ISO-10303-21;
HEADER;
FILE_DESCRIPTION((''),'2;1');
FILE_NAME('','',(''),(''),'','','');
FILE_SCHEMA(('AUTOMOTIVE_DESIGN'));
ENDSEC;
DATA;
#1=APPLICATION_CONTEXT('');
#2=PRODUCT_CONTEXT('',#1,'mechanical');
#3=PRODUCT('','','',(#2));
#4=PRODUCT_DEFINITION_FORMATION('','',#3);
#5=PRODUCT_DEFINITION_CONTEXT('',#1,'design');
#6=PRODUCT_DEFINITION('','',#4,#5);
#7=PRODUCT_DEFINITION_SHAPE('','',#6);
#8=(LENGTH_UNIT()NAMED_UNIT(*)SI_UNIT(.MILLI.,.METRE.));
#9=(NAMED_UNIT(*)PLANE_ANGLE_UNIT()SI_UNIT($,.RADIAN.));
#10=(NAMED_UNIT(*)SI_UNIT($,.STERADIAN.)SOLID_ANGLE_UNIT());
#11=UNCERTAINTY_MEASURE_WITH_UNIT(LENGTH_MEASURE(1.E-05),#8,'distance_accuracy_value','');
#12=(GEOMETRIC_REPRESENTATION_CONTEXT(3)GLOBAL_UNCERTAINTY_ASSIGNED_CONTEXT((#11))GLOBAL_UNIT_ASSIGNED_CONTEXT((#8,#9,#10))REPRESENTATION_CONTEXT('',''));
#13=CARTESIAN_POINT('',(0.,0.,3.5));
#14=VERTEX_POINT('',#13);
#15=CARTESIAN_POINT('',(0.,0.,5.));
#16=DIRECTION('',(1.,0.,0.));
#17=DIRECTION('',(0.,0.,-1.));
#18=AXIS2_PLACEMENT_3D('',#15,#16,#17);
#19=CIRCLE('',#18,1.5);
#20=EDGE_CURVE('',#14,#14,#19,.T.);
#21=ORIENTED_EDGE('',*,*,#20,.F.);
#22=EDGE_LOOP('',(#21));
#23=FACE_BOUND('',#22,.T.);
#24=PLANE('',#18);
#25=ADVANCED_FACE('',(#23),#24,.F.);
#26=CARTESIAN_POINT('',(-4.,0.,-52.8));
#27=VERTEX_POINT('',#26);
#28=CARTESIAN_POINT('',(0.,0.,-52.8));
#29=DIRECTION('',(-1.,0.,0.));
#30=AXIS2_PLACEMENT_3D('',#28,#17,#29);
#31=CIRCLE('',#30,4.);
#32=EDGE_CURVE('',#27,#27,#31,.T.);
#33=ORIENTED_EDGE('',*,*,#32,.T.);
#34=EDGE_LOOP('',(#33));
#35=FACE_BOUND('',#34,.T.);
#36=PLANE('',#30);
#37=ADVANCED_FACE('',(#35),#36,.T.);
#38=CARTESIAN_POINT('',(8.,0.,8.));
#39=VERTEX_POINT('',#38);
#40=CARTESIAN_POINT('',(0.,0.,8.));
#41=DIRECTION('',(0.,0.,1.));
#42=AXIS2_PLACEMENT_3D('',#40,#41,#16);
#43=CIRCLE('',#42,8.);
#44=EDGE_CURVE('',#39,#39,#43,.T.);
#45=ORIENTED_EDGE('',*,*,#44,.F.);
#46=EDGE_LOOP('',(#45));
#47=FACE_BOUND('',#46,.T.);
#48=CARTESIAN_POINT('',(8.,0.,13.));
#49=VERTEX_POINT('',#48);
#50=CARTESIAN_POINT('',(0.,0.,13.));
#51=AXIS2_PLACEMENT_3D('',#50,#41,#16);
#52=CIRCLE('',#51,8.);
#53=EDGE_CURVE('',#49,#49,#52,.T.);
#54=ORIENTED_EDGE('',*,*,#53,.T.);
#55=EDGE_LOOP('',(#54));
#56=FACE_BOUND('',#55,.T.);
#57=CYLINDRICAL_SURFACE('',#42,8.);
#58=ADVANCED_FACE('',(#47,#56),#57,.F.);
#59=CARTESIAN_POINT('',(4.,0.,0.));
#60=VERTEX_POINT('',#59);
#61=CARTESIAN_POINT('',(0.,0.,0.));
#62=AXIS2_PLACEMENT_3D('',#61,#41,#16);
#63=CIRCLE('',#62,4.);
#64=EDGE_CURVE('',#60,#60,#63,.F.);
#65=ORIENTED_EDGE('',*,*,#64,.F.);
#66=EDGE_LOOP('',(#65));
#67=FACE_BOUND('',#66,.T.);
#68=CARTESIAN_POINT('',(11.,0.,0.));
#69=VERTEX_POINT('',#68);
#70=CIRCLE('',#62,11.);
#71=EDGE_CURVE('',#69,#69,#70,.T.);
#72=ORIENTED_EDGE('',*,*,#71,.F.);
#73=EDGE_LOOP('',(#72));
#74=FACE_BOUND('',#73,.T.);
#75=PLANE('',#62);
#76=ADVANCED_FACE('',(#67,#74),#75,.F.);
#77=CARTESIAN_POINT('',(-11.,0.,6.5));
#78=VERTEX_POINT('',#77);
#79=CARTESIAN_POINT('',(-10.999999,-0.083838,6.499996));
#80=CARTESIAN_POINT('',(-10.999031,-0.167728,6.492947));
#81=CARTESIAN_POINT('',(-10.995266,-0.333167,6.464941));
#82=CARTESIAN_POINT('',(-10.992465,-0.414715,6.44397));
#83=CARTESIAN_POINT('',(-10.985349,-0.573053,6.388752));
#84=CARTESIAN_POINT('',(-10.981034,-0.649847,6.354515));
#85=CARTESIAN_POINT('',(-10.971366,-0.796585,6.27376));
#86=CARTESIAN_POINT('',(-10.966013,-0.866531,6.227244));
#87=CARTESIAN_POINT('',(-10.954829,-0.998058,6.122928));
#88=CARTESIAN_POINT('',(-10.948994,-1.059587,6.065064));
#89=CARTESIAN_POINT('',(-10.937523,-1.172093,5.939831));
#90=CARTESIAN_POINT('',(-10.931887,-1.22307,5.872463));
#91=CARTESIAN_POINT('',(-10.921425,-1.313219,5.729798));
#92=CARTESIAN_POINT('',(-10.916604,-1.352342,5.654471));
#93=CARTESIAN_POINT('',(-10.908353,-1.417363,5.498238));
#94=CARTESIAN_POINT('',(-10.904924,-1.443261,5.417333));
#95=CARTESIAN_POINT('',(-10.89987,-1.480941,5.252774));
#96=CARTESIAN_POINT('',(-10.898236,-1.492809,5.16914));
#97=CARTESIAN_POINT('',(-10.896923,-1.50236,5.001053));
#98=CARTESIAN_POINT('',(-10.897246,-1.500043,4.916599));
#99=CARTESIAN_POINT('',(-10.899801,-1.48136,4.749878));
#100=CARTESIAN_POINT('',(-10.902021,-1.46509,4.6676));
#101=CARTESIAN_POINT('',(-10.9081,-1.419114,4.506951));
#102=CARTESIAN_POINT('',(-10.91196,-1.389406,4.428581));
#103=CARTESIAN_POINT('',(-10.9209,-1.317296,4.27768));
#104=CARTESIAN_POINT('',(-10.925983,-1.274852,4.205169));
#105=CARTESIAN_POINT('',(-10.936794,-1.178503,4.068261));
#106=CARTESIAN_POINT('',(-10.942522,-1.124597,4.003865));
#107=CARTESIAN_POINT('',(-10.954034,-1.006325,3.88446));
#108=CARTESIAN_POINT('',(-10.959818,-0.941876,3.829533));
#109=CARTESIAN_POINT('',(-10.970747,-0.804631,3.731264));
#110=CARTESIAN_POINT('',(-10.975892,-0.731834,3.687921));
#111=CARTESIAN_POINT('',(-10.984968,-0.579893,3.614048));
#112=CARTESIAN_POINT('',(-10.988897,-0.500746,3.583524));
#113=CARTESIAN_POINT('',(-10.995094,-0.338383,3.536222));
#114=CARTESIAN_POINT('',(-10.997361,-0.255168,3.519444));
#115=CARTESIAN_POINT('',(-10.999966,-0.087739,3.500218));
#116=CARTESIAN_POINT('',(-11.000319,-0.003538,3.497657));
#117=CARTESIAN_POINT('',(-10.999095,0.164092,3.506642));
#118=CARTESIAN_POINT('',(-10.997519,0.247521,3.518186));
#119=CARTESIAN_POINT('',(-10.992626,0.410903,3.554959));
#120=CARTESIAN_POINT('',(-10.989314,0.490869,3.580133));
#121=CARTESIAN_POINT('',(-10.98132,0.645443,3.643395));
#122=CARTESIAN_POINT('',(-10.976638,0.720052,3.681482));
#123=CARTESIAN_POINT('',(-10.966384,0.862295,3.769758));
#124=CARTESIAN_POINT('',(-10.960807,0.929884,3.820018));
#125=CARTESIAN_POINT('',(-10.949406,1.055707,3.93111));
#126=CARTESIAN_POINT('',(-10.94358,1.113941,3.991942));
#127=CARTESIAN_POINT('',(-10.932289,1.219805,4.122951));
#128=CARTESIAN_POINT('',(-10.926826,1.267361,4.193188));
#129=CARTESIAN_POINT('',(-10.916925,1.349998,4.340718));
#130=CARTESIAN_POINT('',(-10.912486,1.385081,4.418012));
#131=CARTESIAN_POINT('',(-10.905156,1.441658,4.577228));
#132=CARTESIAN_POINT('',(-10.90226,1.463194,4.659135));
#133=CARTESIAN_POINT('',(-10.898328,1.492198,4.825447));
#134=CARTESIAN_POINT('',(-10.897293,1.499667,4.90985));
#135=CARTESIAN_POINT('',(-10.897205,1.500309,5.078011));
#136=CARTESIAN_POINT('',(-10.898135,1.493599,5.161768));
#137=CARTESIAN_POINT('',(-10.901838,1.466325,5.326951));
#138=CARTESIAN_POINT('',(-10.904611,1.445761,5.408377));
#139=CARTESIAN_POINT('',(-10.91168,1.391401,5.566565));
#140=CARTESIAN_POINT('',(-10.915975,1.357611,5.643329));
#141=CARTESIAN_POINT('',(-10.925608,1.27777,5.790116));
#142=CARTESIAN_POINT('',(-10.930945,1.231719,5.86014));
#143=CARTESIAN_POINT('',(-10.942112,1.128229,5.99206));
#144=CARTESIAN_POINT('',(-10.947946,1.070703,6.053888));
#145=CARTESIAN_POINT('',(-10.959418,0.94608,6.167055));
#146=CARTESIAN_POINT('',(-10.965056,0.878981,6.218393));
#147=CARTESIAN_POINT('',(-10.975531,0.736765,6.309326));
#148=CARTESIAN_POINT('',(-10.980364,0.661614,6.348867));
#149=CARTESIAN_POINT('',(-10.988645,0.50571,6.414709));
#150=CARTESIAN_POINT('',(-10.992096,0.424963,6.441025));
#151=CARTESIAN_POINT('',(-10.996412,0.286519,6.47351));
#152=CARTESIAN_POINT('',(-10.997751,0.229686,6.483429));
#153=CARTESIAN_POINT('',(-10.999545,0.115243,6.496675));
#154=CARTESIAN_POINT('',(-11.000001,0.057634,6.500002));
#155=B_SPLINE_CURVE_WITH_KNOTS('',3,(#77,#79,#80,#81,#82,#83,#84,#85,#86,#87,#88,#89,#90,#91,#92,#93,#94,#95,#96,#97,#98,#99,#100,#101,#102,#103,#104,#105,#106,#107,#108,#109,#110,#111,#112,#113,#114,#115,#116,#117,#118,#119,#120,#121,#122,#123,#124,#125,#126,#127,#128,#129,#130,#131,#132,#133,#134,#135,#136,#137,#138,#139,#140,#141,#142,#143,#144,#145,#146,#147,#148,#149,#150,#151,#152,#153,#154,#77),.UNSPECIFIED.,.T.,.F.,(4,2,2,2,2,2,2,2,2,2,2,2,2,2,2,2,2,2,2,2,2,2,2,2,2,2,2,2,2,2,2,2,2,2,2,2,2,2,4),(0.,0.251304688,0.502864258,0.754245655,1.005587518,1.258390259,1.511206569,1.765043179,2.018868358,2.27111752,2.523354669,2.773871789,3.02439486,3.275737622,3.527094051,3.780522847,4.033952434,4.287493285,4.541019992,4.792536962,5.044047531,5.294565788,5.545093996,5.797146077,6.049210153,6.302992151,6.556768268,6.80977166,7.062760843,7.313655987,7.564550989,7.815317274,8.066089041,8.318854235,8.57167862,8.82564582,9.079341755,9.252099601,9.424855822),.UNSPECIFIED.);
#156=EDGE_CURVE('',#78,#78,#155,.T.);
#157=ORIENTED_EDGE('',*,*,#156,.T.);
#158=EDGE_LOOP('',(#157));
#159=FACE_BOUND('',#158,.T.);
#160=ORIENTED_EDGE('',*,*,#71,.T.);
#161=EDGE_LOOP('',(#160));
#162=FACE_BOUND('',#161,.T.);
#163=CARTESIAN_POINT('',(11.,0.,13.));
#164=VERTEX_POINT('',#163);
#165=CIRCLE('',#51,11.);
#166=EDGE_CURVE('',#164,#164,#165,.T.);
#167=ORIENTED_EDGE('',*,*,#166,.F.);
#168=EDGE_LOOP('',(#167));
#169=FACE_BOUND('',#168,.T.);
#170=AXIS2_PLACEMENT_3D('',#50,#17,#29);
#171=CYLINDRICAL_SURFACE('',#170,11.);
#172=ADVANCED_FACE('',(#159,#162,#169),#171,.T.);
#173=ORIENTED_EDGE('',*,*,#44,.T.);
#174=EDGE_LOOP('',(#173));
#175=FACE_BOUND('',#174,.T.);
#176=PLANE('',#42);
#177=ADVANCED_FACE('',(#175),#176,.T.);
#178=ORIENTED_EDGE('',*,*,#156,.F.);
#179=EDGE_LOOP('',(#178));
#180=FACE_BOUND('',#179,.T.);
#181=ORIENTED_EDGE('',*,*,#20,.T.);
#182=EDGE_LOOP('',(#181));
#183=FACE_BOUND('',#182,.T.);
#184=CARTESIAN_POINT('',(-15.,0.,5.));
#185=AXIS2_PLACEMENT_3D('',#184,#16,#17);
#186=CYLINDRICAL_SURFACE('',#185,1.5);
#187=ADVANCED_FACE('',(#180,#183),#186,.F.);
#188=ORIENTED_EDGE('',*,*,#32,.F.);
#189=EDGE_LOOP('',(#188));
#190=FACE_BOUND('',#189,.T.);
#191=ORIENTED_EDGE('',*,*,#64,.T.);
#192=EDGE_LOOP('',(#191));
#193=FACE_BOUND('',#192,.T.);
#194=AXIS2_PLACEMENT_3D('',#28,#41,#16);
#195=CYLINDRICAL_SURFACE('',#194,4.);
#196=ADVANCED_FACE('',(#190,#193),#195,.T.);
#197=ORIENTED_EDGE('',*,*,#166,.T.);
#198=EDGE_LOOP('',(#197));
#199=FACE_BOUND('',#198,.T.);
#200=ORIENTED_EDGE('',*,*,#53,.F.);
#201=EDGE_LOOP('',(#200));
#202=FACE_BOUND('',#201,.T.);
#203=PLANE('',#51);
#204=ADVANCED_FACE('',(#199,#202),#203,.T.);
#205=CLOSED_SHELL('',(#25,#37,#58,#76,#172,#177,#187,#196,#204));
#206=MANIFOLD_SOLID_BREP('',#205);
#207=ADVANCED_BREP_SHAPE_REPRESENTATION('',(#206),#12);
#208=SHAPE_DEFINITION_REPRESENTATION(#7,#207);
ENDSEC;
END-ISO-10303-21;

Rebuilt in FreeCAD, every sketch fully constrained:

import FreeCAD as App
import Part
import Sketcher

V = App.Vector

doc = App.newDocument("Part")
body = doc.addObject("PartDesign::Body", "Body")

sketch1 = body.newObject("Sketcher::SketchObject", "Sketch")
sketch1.AttachmentSupport = (doc.getObject("XY_Plane"), [""])
sketch1.MapMode = "FlatFace"
sketch1.addGeometry(Part.Circle(V(0, 0, 0), V(0, 0, 1), 11), False)
sketch1.addConstraint([
    Sketcher.Constraint("Coincident", 0, 3, -1, 1),
    Sketcher.Constraint("Diameter", 0, 22.0),
])
pad1 = body.newObject("PartDesign::Pad", "Pad")
pad1.Profile = sketch1
pad1.Length = 13

sketch2 = body.newObject("Sketcher::SketchObject", "Sketch001")
sketch2.AttachmentSupport = (doc.getObject("XY_Plane"), [""])
sketch2.MapMode = "FlatFace"
sketch2.AttachmentOffset = App.Placement(V(0, 0, 13), App.Rotation())
sketch2.addGeometry(Part.Circle(V(0, 0, 0), V(0, 0, 1), 8), False)
sketch2.addConstraint([
    Sketcher.Constraint("Coincident", 0, 3, -1, 1),
    Sketcher.Constraint("Diameter", 0, 16.0),
])
pocket1 = body.newObject("PartDesign::Pocket", "Pocket")
pocket1.Profile = sketch2
pocket1.Length = 5

sketch3 = body.newObject("Sketcher::SketchObject", "Sketch002")
sketch3.AttachmentSupport = (doc.getObject("YZ_Plane"), [""])
sketch3.MapMode = "FlatFace"
sketch3.addGeometry(Part.Circle(V(0, 5, 0), V(0, 0, 1), 1.5), False)
sketch3.addConstraint([
    Sketcher.Constraint("PointOnObject", 0, 3, -2),
    Sketcher.Constraint("Diameter", 0, 3.0),
    Sketcher.Constraint("DistanceY", -1, 1, 0, 3, 5.0),
])
pocket2 = body.newObject("PartDesign::Pocket", "Pocket001")
pocket2.Profile = sketch3
pocket2.Length = 15

sketch4 = body.newObject("Sketcher::SketchObject", "Sketch003")
sketch4.AttachmentSupport = (doc.getObject("XY_Plane"), [""])
sketch4.MapMode = "FlatFace"
sketch4.addGeometry(Part.Circle(V(0, 0, 0), V(0, 0, 1), 4), False)
sketch4.addConstraint([
    Sketcher.Constraint("Coincident", 0, 3, -1, 1),
    Sketcher.Constraint("Diameter", 0, 8.0),
])
pad2 = body.newObject("PartDesign::Pad", "Pad001")
pad2.Profile = sketch4
pad2.Length = 52.8
pad2.Reversed = True

doc.recompute()
